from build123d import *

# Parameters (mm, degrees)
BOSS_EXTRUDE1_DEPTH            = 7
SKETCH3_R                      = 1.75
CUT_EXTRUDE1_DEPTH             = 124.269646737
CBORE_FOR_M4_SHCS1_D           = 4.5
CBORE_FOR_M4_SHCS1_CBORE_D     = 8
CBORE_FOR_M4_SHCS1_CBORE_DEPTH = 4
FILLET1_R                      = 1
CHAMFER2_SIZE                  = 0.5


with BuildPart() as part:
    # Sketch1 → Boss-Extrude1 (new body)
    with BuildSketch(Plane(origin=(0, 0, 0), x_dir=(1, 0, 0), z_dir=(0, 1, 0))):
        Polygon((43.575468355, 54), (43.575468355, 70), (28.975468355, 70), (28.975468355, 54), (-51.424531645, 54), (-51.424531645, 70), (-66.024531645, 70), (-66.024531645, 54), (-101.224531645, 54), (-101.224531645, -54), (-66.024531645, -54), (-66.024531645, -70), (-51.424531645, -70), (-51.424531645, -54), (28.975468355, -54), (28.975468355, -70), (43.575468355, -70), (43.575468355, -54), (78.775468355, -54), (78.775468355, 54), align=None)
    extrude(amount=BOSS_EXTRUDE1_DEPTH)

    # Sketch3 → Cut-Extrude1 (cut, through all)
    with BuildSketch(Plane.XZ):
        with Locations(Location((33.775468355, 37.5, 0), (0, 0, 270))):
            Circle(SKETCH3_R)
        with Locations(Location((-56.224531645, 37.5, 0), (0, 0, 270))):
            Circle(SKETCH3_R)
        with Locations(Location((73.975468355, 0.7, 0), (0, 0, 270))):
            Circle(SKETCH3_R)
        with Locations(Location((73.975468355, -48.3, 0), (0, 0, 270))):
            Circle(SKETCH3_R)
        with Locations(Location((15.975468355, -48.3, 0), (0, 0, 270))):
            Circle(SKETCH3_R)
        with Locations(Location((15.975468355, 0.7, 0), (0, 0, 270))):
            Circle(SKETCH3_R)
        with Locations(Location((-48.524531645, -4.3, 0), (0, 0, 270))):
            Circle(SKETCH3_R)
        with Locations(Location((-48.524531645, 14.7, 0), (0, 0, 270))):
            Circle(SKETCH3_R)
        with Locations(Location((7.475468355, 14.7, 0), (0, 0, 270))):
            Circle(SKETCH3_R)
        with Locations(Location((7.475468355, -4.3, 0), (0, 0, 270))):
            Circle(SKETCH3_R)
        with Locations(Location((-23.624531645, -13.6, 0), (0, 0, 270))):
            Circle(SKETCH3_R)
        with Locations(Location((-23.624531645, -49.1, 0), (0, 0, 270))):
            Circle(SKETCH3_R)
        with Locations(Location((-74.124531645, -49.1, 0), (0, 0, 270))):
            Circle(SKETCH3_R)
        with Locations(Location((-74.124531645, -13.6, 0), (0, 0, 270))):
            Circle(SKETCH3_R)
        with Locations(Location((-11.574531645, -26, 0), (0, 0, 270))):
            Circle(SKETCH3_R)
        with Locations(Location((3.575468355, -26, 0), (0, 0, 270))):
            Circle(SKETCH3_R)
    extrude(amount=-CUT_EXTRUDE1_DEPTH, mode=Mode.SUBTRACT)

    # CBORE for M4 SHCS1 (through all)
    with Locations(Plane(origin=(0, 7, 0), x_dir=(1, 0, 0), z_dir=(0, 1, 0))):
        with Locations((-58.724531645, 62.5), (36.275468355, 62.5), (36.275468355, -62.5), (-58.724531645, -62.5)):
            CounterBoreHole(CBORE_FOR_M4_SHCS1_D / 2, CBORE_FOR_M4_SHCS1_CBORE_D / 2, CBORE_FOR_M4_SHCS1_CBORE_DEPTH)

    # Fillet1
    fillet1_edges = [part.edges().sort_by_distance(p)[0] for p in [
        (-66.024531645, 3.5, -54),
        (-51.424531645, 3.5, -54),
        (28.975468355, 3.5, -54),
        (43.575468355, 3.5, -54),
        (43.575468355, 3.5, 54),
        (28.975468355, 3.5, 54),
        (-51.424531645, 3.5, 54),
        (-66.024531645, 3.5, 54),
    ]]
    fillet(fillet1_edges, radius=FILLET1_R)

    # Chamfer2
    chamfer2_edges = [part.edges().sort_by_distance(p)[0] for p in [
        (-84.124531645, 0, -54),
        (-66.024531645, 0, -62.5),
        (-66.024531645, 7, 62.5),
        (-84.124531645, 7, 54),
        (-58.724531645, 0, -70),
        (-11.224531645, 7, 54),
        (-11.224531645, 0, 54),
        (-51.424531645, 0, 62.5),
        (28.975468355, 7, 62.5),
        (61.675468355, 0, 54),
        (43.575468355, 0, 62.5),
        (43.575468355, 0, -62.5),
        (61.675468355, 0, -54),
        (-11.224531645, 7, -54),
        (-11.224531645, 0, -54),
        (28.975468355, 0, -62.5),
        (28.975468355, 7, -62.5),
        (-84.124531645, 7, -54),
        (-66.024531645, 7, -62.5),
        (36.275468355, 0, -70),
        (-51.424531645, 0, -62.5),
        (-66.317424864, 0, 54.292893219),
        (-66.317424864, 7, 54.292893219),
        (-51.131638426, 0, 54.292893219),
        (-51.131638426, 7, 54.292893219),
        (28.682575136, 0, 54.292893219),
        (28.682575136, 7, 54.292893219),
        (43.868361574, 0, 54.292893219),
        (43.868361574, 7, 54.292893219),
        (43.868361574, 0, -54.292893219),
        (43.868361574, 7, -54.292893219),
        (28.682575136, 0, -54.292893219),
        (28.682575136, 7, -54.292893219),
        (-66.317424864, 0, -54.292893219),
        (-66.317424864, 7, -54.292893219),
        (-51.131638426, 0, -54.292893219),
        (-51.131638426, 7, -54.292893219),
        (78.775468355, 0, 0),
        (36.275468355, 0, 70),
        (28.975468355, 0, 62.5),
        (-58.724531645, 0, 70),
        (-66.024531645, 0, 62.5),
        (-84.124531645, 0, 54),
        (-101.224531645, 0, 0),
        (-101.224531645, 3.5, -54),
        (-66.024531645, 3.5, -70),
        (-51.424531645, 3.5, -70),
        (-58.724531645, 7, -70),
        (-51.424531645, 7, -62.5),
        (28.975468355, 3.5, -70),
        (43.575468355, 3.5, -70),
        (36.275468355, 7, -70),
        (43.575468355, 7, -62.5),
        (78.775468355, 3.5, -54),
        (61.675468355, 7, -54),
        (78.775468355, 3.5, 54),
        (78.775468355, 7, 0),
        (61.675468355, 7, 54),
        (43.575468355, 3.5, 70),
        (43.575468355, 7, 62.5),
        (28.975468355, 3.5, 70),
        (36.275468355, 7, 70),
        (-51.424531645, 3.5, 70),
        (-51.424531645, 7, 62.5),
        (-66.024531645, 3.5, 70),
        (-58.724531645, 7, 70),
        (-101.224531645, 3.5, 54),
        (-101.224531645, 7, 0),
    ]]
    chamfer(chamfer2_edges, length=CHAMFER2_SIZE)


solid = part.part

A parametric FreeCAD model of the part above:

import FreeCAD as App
import Part
import Sketcher


def edges_at(feature, points):
    """Names of the edges that pass closest to the given points."""
    edges = feature.Shape.Edges
    near = lambda p: min(range(len(edges)), key=lambda i: edges[i].distToShape(Part.Vertex(*p))[0])
    return sorted({f"Edge{near(p) + 1}" for p in points})


def add_polygon(sketch, points):
    """Adds a closed chain of lines whose ends are joined by coincident constraints."""
    first, n = sketch.GeometryCount, len(points)
    for a, b in zip(points, points[1:] + points[:1]):
        sketch.addGeometry(Part.LineSegment(App.Vector(*a, 0), App.Vector(*b, 0)), False)
    for i in range(n):
        sketch.addConstraint(Sketcher.Constraint("Coincident", first + i, 2, first + (i + 1) % n, 1))

doc = App.newDocument("Part")
params = doc.addObject("Spreadsheet::Sheet", "Params")
for row, (alias, value) in enumerate([
    ("sketch1_height", "16 mm"),
    ("sketch1_height2", "108 mm"),
    ("sketch1_width", "14.6 mm"),
    ("sketch1_width2", "80.4 mm"),
    ("sketch1_width3", "35.2 mm"),
    ("pad1_length", "7 mm"),
    ("sketch2_diameter", "3.5 mm"),
    ("sketch3_diameter", "4.5 mm"),
    ("hole_diameter", "4.5 mm"),
    ("hole_cbore_diameter", "8 mm"),
    ("hole_cbore_depth", "4 mm"),
    ("fillet_radius", "1 mm"),
    ("chamfer_size", "0.5 mm"),
], start=1):
    params.set(f"A{row}", alias)
    params.set(f"B{row}", "=" + value)
    params.setAlias(f"B{row}", alias)

body = doc.addObject("PartDesign::Body", "Body")

# Sketch on XZ plane
sketch1 = body.newObject("Sketcher::SketchObject", "Sketch")
sketch1.AttachmentSupport = (doc.getObject("XZ_Plane"), [""])
sketch1.MapMode = "FlatFace"
add_polygon(sketch1, [(44, -54), (44, -70), (29, -70), (29, -54), (-51, -54), (-51, -70), (-66, -70), (-66, -54), (-101, -54), (-101, 54), (-66, 54), (-66, 70), (-51, 70), (-51, 54), (29, 54), (29, 70), (44, 70), (44, 54), (79, 54), (79, -54)])  # lines 0-19
sketch1.addConstraint([
    Sketcher.Constraint("Vertical", 0),
    Sketcher.Constraint("Horizontal", 1),
    Sketcher.Constraint("Vertical", 2),
    Sketcher.Constraint("Horizontal", 3),
    Sketcher.Constraint("Vertical", 4),
    Sketcher.Constraint("Horizontal", 5),
    Sketcher.Constraint("Vertical", 6),
    Sketcher.Constraint("Horizontal", 7),
    Sketcher.Constraint("Vertical", 8),
    Sketcher.Constraint("Horizontal", 9),
    Sketcher.Constraint("Vertical", 10),
    Sketcher.Constraint("Horizontal", 11),
    Sketcher.Constraint("Vertical", 12),
    Sketcher.Constraint("Horizontal", 13),
    Sketcher.Constraint("Vertical", 14),
    Sketcher.Constraint("Horizontal", 15),
    Sketcher.Constraint("Vertical", 16),
    Sketcher.Constraint("Horizontal", 17),
    Sketcher.Constraint("Vertical", 18),
    Sketcher.Constraint("Horizontal", 19),
    Sketcher.Constraint("Symmetric", 6, 2, 9, 2, -1),
    Sketcher.Constraint("Symmetric", 4, 2, 11, 2, -1),
    Sketcher.Constraint("Symmetric", 2, 2, 13, 2, -1),
    Sketcher.Constraint("Symmetric", 0, 2, 15, 2, -1),
    Sketcher.Constraint("Horizontal", 1, 2, 4, 2),
    Sketcher.Constraint("Horizontal", 3, 2, 6, 2),
    Sketcher.Constraint("Horizontal", 13, 2, 16, 2),
    Sketcher.Constraint("Horizontal", 7, 2, 18, 2),
    Sketcher.Constraint("Equal", 1, 5),
    Sketcher.Constraint("Equal", 9, 17),
    Sketcher.Constraint("DistanceY", 0, 2, 0, 1, 16.0),
    Sketcher.Constraint("DistanceY", 8, 1, 8, 2, 108.0),
    Sketcher.Constraint("DistanceX", 1, 2, 1, 1, 14.6),
    Sketcher.Constraint("DistanceX", 3, 2, 3, 1, 80.4),
    Sketcher.Constraint("DistanceX", 7, 2, 7, 1, 35.2),
    Sketcher.Constraint("DistanceX", -1, 1, 0, 2, 43.575468),
])
sketch1.setExpression("Constraints[50]", "Params.sketch1_height")
sketch1.setExpression("Constraints[51]", "Params.sketch1_height2")
sketch1.setExpression("Constraints[52]", "Params.sketch1_width")
sketch1.setExpression("Constraints[53]", "Params.sketch1_width2")
sketch1.setExpression("Constraints[54]", "Params.sketch1_width3")
pad1 = body.newObject("PartDesign::Pad", "Pad")
pad1.Profile = sketch1
pad1.setExpression("Length", "Params.pad1_length")
pad1.Reversed = True

# Sketch on XZ plane
sketch2 = body.newObject("Sketcher::SketchObject", "Sketch001")
sketch2.AttachmentSupport = (doc.getObject("XZ_Plane"), [""])
sketch2.MapMode = "FlatFace"
sketch2.addGeometry([
    Part.Circle(App.Vector(33.8, 37.5, 0), App.Vector(0, 0, 1), 1.8),  # 0
    Part.Circle(App.Vector(-56.2, 37.5, 0), App.Vector(0, 0, 1), 1.8),  # 1
    Part.Circle(App.Vector(74, 0.7, 0), App.Vector(0, 0, 1), 1.8),  # 2
    Part.Circle(App.Vector(74, -48.3, 0), App.Vector(0, 0, 1), 1.8),  # 3
    Part.Circle(App.Vector(16, -48.3, 0), App.Vector(0, 0, 1), 1.8),  # 4
    Part.Circle(App.Vector(16, 0.7, 0), App.Vector(0, 0, 1), 1.8),  # 5
    Part.Circle(App.Vector(-48.5, -4.3, 0), App.Vector(0, 0, 1), 1.8),  # 6
    Part.Circle(App.Vector(-48.5, 14.7, 0), App.Vector(0, 0, 1), 1.8),  # 7
    Part.Circle(App.Vector(7.5, 14.7, 0), App.Vector(0, 0, 1), 1.8),  # 8
    Part.Circle(App.Vector(7.5, -4.3, 0), App.Vector(0, 0, 1), 1.8),  # 9
    Part.Circle(App.Vector(-23.6, -13.6, 0), App.Vector(0, 0, 1), 1.8),  # 10
    Part.Circle(App.Vector(-23.6, -49.1, 0), App.Vector(0, 0, 1), 1.8),  # 11
    Part.Circle(App.Vector(-74.1, -49.1, 0), App.Vector(0, 0, 1), 1.8),  # 12
    Part.Circle(App.Vector(-74.1, -13.6, 0), App.Vector(0, 0, 1), 1.8),  # 13
    Part.Circle(App.Vector(-11.6, -26, 0), App.Vector(0, 0, 1), 1.8),  # 14
    Part.Circle(App.Vector(3.6, -26, 0), App.Vector(0, 0, 1), 1.8),  # 15
], False)
sketch2.addConstraint([
    Sketcher.Constraint("Equal", 0, 1),
    Sketcher.Constraint("Equal", 1, 2),
    Sketcher.Constraint("Equal", 2, 3),
    Sketcher.Constraint("Equal", 3, 4),
    Sketcher.Constraint("Equal", 4, 5),
    Sketcher.Constraint("Equal", 5, 6),
    Sketcher.Constraint("Equal", 6, 7),
    Sketcher.Constraint("Equal", 7, 8),
    Sketcher.Constraint("Equal", 8, 9),
    Sketcher.Constraint("Equal", 9, 10),
    Sketcher.Constraint("Equal", 10, 11),
    Sketcher.Constraint("Equal", 11, 12),
    Sketcher.Constraint("Equal", 12, 13),
    Sketcher.Constraint("Equal", 13, 14),
    Sketcher.Constraint("Equal", 14, 15),
    Sketcher.Constraint("Horizontal", 0, 3, 1, 3),
    Sketcher.Constraint("Horizontal", 3, 3, 4, 3),
    Sketcher.Constraint("Horizontal", 2, 3, 5, 3),
    Sketcher.Constraint("Horizontal", 7, 3, 8, 3),
    Sketcher.Constraint("Horizontal", 6, 3, 9, 3),
    Sketcher.Constraint("Horizontal", 11, 3, 12, 3),
    Sketcher.Constraint("Horizontal", 10, 3, 13, 3),
    Sketcher.Constraint("Horizontal", 14, 3, 15, 3),
    Sketcher.Constraint("Vertical", 2, 3, 3, 3),
    Sketcher.Constraint("Vertical", 4, 3, 5, 3),
    Sketcher.Constraint("Vertical", 6, 3, 7, 3),
    Sketcher.Constraint("Vertical", 8, 3, 9, 3),
    Sketcher.Constraint("Vertical", 10, 3, 11, 3),
    Sketcher.Constraint("Vertical", 12, 3, 13, 3),
    Sketcher.Constraint("Diameter", 0, 3.5),
    Sketcher.Constraint("DistanceY", 14, 3, -1, 1, 26.0),
    Sketcher.Constraint("DistanceX", 1, 3, 0, 3, 90.0),
    Sketcher.Constraint("DistanceY", 3, 3, 2, 3, 49.0),
    Sketcher.Constraint("DistanceX", 4, 3, 3, 3, 58.0),
    Sketcher.Constraint("DistanceY", 6, 3, 5, 3, 5.0),
    Sketcher.Constraint("DistanceY", 6, 3, 7, 3, 19.0),
    Sketcher.Constraint("DistanceX", 7, 3, 8, 3, 56.0),
    Sketcher.Constraint("DistanceY", -1, 1, 0, 3, 37.5),
    Sketcher.Constraint("DistanceY", -1, 1, 2, 3, 0.7),
    Sketcher.Constraint("DistanceY", 10, 3, -1, 1, 13.6),
    Sketcher.Constraint("DistanceY", 11, 3, -1, 1, 49.1),
    Sketcher.Constraint("DistanceX", 0, 3, 2, 3, 40.2),
    Sketcher.Constraint("DistanceX", 1, 3, 6, 3, 7.7),
    Sketcher.Constraint("DistanceX", 6, 3, 10, 3, 24.9),
    Sketcher.Constraint("DistanceX", 12, 3, 11, 3, 50.5),
    Sketcher.Constraint("DistanceX", 15, 3, 9, 3, 3.9),
    Sketcher.Constraint("DistanceX", 10, 3, 14, 3, 12.05),
    Sketcher.Constraint("DistanceX", -1, 1, 0, 3, 33.775468),
])
sketch2.setExpression("Constraints[29]", "Params.sketch2_diameter")
pocket1 = body.newObject("PartDesign::Pocket", "Pocket")
pocket1.Profile = sketch2
pocket1.Type = "ThroughAll"

# Sketch on XZ plane
sketch3 = body.newObject("Sketcher::SketchObject", "Sketch002")
sketch3.AttachmentSupport = (doc.getObject("XZ_Plane"), [""])
sketch3.MapMode = "FlatFace"
sketch3.AttachmentOffset = App.Placement(App.Vector(0, 0, -7), App.Rotation())
sketch3.addGeometry([
    Part.Circle(App.Vector(-58.7, -62.5, 0), App.Vector(0, 0, 1), 2.2),
    Part.Circle(App.Vector(36.3, -62.5, 0), App.Vector(0, 0, 1), 2.2),
    Part.Circle(App.Vector(36.3, 62.5, 0), App.Vector(0, 0, 1), 2.2),
    Part.Circle(App.Vector(-58.7, 62.5, 0), App.Vector(0, 0, 1), 2.2),
], False)
sketch3.addConstraint([
    Sketcher.Constraint("Equal", 0, 1),
    Sketcher.Constraint("Equal", 1, 2),
    Sketcher.Constraint("Equal", 2, 3),
    Sketcher.Constraint("Symmetric", 1, 3, 2, 3, -1),
    Sketcher.Constraint("Symmetric", 0, 3, 3, 3, -1),
    Sketcher.Constraint("Horizontal", 0, 3, 1, 3),
    Sketcher.Constraint("Diameter", 0, 4.5),
    Sketcher.Constraint("DistanceX", 0, 3, 1, 3, 95.0),
    Sketcher.Constraint("DistanceY", 1, 3, 2, 3, 125.0),
    Sketcher.Constraint("DistanceX", 0, 3, -1, 1, 58.724532),
])
sketch3.setExpression("Constraints[6]", "Params.sketch3_diameter")
doc.recompute()
hole = body.newObject("PartDesign::Hole", "Hole")
hole.Profile = sketch3
hole.ThreadType = "None"
hole.setExpression("Diameter", "Params.hole_diameter")
hole.DepthType = "ThroughAll"
hole.HoleCutType = "Counterbore"
hole.setExpression("HoleCutDiameter", "Params.hole_cbore_diameter")
hole.setExpression("HoleCutDepth", "Params.hole_cbore_depth")
hole.Reversed = True
doc.recompute()

fillet = body.newObject("PartDesign::Fillet", "Fillet")
fillet.Base = (hole, edges_at(hole, [
    (-66.025, 3.5, -54),
    (-51.425, 3.5, -54),
    (28.975, 3.5, -54),
    (43.575, 3.5, -54),
    (43.575, 3.5, 54),
    (28.975, 3.5, 54),
    (-51.425, 3.5, 54),
    (-66.025, 3.5, 54),
]))
fillet.setExpression("Radius", "Params.fillet_radius")
doc.recompute()

chamfer = body.newObject("PartDesign::Chamfer", "Chamfer")
chamfer.Base = (fillet, edges_at(fillet, [
    (-84.125, 0, -54),
    (-66.025, 0, -62.5),
    (-66.025, 7, 62.5),
    (-84.125, 7, 54),
    (-58.725, 0, -70),
    (-11.225, 7, 54),
    (-11.225, 0, 54),
    (-51.425, 0, 62.5),
    (28.975, 7, 62.5),
    (61.675, 0, 54),
    (43.575, 0, 62.5),
    (43.575, 0, -62.5),
    (61.675, 0, -54),
    (-11.225, 7, -54),
    (-11.225, 0, -54),
    (28.975, 0, -62.5),
    (28.975, 7, -62.5),
    (-84.125, 7, -54),
    (-66.025, 7, -62.5),
    (36.275, 0, -70),
    (-51.425, 0, -62.5),
    (-66.317, 0, 54.293),
    (-66.317, 7, 54.293),
    (-51.132, 0, 54.293),
    (-51.132, 7, 54.293),
    (28.683, 0, 54.293),
    (28.683, 7, 54.293),
    (43.868, 0, 54.293),
    (43.868, 7, 54.293),
    (43.868, 0, -54.293),
    (43.868, 7, -54.293),
    (28.683, 0, -54.293),
    (28.683, 7, -54.293),
    (-66.317, 0, -54.293),
    (-66.317, 7, -54.293),
    (-51.132, 0, -54.293),
    (-51.132, 7, -54.293),
    (78.775, 0, 0),
    (36.275, 0, 70),
    (28.975, 0, 62.5),
    (-58.725, 0, 70),
    (-66.025, 0, 62.5),
    (-84.125, 0, 54),
    (-101.225, 0, 0),
    (-101.225, 3.5, -54),
    (-66.025, 3.5, -70),
    (-51.425, 3.5, -70),
    (-58.725, 7, -70),
    (-51.425, 7, -62.5),
    (28.975, 3.5, -70),
    (43.575, 3.5, -70),
    (36.275, 7, -70),
    (43.575, 7, -62.5),
    (78.775, 3.5, -54),
    (61.675, 7, -54),
    (78.775, 3.5, 54),
    (78.775, 7, 0),
    (61.675, 7, 54),
    (43.575, 3.5, 70),
    (43.575, 7, 62.5),
    (28.975, 3.5, 70),
    (36.275, 7, 70),
    (-51.425, 3.5, 70),
    (-51.425, 7, 62.5),
    (-66.025, 3.5, 70),
    (-58.725, 7, 70),
    (-101.225, 3.5, 54),
    (-101.225, 7, 0),
]))
chamfer.setExpression("Size", "Params.chamfer_size")

doc.recompute()
